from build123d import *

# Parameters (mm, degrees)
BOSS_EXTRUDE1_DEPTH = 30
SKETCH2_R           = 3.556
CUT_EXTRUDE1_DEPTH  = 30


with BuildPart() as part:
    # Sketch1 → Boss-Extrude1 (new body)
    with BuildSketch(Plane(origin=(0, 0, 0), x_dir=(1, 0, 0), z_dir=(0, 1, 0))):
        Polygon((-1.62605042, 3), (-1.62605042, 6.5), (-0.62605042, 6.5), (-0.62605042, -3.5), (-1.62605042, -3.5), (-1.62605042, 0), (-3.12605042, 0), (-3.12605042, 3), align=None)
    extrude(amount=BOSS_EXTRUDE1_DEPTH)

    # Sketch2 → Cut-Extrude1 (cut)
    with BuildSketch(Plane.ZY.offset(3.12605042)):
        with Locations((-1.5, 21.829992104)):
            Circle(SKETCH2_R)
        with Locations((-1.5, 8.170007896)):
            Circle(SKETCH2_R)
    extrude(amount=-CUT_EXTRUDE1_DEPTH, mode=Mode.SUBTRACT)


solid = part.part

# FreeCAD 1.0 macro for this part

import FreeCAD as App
import Part
import Sketcher
from FreeCAD import Vector

doc = App.newDocument("Part")
body = doc.addObject("PartDesign::Body", "Body")

sketch1 = body.newObject("Sketcher::SketchObject", "Sketch")
sketch1.AttachmentSupport = (doc.getObject("XZ_Plane"), [""])
sketch1.MapMode = "FlatFace"
sketch1.addGeometry([
    Part.LineSegment(Vector(-1.62605, -6.5, 0), Vector(-1.62605, -3, 0)),
    Part.LineSegment(Vector(-1.62605, -3, 0), Vector(-3.12605, -3, 0)),
    Part.LineSegment(Vector(-3.12605, -3, 0), Vector(-3.12605, 0, 0)),
    Part.LineSegment(Vector(-3.12605, 0, 0), Vector(-1.62605, 0, 0)),
    Part.LineSegment(Vector(-1.62605, 0, 0), Vector(-1.62605, 3.5, 0)),
    Part.LineSegment(Vector(-1.62605, 3.5, 0), Vector(-0.62605, 3.5, 0)),
    Part.LineSegment(Vector(-0.62605, 3.5, 0), Vector(-0.62605, -6.5, 0)),
    Part.LineSegment(Vector(-0.62605, -6.5, 0), Vector(-1.62605, -6.5, 0)),
], False)
sketch1.addConstraint([
    Sketcher.Constraint("Coincident", 0, 2, 1, 1),
    Sketcher.Constraint("Coincident", 1, 2, 2, 1),
    Sketcher.Constraint("Coincident", 2, 2, 3, 1),
    Sketcher.Constraint("Coincident", 3, 2, 4, 1),
    Sketcher.Constraint("Coincident", 4, 2, 5, 1),
    Sketcher.Constraint("Coincident", 5, 2, 6, 1),
    Sketcher.Constraint("Coincident", 6, 2, 7, 1),
    Sketcher.Constraint("Coincident", 7, 2, 0, 1),
    Sketcher.Constraint("Vertical", 0),
    Sketcher.Constraint("Horizontal", 1),
    Sketcher.Constraint("Vertical", 2),
    Sketcher.Constraint("Horizontal", 3),
    Sketcher.Constraint("Vertical", 4),
    Sketcher.Constraint("Horizontal", 5),
    Sketcher.Constraint("Vertical", 6),
    Sketcher.Constraint("Horizontal", 7),
    Sketcher.Constraint("PointOnObject", 2, 2, -1),
    Sketcher.Constraint("Vertical", 0, 2, 3, 2),
    Sketcher.Constraint("Equal", 0, 4),
    Sketcher.Constraint("DistanceX", 5, 1, 5, 2, 1.0),
    Sketcher.Constraint("DistanceY", 2, 1, 2, 2, 3.0),
    Sketcher.Constraint("DistanceY", 6, 2, 6, 1, 10.0),
    Sketcher.Constraint("DistanceX", 1, 2, 1, 1, 1.5),
    Sketcher.Constraint("DistanceX", 0, 2, -1, 1, 1.62605),
])
pad1 = body.newObject("PartDesign::Pad", "Pad")
pad1.Profile = sketch1
pad1.Length = 30
pad1.Reversed = True

sketch2 = body.newObject("Sketcher::SketchObject", "Sketch001")
sketch2.AttachmentSupport = (doc.getObject("YZ_Plane"), [""])
sketch2.MapMode = "FlatFace"
sketch2.AttachmentOffset = App.Placement(Vector(0, 0, -3.12605), App.Rotation())
sketch2.addGeometry([
    Part.Circle(Vector(21.829992, -1.5, 0), Vector(0, 0, 1), 3.556),
    Part.Circle(Vector(8.170008, -1.5, 0), Vector(0, 0, 1), 3.556),
], False)
sketch2.addConstraint([
    Sketcher.Constraint("Equal", 0, 1),
    Sketcher.Constraint("Horizontal", 0, 3, 1, 3),
    Sketcher.Constraint("Diameter", 0, 7.112),
    Sketcher.Constraint("DistanceY", 0, 3, -1, 1, 1.5),
    Sketcher.Constraint("DistanceX", -1, 1, 0, 3, 21.829992),
    Sketcher.Constraint("DistanceX", -1, 1, 1, 3, 8.170008),
])
pocket1 = body.newObject("PartDesign::Pocket", "Pocket")
pocket1.Profile = sketch2
pocket1.Length = 30
pocket1.Reversed = True

doc.recompute()
